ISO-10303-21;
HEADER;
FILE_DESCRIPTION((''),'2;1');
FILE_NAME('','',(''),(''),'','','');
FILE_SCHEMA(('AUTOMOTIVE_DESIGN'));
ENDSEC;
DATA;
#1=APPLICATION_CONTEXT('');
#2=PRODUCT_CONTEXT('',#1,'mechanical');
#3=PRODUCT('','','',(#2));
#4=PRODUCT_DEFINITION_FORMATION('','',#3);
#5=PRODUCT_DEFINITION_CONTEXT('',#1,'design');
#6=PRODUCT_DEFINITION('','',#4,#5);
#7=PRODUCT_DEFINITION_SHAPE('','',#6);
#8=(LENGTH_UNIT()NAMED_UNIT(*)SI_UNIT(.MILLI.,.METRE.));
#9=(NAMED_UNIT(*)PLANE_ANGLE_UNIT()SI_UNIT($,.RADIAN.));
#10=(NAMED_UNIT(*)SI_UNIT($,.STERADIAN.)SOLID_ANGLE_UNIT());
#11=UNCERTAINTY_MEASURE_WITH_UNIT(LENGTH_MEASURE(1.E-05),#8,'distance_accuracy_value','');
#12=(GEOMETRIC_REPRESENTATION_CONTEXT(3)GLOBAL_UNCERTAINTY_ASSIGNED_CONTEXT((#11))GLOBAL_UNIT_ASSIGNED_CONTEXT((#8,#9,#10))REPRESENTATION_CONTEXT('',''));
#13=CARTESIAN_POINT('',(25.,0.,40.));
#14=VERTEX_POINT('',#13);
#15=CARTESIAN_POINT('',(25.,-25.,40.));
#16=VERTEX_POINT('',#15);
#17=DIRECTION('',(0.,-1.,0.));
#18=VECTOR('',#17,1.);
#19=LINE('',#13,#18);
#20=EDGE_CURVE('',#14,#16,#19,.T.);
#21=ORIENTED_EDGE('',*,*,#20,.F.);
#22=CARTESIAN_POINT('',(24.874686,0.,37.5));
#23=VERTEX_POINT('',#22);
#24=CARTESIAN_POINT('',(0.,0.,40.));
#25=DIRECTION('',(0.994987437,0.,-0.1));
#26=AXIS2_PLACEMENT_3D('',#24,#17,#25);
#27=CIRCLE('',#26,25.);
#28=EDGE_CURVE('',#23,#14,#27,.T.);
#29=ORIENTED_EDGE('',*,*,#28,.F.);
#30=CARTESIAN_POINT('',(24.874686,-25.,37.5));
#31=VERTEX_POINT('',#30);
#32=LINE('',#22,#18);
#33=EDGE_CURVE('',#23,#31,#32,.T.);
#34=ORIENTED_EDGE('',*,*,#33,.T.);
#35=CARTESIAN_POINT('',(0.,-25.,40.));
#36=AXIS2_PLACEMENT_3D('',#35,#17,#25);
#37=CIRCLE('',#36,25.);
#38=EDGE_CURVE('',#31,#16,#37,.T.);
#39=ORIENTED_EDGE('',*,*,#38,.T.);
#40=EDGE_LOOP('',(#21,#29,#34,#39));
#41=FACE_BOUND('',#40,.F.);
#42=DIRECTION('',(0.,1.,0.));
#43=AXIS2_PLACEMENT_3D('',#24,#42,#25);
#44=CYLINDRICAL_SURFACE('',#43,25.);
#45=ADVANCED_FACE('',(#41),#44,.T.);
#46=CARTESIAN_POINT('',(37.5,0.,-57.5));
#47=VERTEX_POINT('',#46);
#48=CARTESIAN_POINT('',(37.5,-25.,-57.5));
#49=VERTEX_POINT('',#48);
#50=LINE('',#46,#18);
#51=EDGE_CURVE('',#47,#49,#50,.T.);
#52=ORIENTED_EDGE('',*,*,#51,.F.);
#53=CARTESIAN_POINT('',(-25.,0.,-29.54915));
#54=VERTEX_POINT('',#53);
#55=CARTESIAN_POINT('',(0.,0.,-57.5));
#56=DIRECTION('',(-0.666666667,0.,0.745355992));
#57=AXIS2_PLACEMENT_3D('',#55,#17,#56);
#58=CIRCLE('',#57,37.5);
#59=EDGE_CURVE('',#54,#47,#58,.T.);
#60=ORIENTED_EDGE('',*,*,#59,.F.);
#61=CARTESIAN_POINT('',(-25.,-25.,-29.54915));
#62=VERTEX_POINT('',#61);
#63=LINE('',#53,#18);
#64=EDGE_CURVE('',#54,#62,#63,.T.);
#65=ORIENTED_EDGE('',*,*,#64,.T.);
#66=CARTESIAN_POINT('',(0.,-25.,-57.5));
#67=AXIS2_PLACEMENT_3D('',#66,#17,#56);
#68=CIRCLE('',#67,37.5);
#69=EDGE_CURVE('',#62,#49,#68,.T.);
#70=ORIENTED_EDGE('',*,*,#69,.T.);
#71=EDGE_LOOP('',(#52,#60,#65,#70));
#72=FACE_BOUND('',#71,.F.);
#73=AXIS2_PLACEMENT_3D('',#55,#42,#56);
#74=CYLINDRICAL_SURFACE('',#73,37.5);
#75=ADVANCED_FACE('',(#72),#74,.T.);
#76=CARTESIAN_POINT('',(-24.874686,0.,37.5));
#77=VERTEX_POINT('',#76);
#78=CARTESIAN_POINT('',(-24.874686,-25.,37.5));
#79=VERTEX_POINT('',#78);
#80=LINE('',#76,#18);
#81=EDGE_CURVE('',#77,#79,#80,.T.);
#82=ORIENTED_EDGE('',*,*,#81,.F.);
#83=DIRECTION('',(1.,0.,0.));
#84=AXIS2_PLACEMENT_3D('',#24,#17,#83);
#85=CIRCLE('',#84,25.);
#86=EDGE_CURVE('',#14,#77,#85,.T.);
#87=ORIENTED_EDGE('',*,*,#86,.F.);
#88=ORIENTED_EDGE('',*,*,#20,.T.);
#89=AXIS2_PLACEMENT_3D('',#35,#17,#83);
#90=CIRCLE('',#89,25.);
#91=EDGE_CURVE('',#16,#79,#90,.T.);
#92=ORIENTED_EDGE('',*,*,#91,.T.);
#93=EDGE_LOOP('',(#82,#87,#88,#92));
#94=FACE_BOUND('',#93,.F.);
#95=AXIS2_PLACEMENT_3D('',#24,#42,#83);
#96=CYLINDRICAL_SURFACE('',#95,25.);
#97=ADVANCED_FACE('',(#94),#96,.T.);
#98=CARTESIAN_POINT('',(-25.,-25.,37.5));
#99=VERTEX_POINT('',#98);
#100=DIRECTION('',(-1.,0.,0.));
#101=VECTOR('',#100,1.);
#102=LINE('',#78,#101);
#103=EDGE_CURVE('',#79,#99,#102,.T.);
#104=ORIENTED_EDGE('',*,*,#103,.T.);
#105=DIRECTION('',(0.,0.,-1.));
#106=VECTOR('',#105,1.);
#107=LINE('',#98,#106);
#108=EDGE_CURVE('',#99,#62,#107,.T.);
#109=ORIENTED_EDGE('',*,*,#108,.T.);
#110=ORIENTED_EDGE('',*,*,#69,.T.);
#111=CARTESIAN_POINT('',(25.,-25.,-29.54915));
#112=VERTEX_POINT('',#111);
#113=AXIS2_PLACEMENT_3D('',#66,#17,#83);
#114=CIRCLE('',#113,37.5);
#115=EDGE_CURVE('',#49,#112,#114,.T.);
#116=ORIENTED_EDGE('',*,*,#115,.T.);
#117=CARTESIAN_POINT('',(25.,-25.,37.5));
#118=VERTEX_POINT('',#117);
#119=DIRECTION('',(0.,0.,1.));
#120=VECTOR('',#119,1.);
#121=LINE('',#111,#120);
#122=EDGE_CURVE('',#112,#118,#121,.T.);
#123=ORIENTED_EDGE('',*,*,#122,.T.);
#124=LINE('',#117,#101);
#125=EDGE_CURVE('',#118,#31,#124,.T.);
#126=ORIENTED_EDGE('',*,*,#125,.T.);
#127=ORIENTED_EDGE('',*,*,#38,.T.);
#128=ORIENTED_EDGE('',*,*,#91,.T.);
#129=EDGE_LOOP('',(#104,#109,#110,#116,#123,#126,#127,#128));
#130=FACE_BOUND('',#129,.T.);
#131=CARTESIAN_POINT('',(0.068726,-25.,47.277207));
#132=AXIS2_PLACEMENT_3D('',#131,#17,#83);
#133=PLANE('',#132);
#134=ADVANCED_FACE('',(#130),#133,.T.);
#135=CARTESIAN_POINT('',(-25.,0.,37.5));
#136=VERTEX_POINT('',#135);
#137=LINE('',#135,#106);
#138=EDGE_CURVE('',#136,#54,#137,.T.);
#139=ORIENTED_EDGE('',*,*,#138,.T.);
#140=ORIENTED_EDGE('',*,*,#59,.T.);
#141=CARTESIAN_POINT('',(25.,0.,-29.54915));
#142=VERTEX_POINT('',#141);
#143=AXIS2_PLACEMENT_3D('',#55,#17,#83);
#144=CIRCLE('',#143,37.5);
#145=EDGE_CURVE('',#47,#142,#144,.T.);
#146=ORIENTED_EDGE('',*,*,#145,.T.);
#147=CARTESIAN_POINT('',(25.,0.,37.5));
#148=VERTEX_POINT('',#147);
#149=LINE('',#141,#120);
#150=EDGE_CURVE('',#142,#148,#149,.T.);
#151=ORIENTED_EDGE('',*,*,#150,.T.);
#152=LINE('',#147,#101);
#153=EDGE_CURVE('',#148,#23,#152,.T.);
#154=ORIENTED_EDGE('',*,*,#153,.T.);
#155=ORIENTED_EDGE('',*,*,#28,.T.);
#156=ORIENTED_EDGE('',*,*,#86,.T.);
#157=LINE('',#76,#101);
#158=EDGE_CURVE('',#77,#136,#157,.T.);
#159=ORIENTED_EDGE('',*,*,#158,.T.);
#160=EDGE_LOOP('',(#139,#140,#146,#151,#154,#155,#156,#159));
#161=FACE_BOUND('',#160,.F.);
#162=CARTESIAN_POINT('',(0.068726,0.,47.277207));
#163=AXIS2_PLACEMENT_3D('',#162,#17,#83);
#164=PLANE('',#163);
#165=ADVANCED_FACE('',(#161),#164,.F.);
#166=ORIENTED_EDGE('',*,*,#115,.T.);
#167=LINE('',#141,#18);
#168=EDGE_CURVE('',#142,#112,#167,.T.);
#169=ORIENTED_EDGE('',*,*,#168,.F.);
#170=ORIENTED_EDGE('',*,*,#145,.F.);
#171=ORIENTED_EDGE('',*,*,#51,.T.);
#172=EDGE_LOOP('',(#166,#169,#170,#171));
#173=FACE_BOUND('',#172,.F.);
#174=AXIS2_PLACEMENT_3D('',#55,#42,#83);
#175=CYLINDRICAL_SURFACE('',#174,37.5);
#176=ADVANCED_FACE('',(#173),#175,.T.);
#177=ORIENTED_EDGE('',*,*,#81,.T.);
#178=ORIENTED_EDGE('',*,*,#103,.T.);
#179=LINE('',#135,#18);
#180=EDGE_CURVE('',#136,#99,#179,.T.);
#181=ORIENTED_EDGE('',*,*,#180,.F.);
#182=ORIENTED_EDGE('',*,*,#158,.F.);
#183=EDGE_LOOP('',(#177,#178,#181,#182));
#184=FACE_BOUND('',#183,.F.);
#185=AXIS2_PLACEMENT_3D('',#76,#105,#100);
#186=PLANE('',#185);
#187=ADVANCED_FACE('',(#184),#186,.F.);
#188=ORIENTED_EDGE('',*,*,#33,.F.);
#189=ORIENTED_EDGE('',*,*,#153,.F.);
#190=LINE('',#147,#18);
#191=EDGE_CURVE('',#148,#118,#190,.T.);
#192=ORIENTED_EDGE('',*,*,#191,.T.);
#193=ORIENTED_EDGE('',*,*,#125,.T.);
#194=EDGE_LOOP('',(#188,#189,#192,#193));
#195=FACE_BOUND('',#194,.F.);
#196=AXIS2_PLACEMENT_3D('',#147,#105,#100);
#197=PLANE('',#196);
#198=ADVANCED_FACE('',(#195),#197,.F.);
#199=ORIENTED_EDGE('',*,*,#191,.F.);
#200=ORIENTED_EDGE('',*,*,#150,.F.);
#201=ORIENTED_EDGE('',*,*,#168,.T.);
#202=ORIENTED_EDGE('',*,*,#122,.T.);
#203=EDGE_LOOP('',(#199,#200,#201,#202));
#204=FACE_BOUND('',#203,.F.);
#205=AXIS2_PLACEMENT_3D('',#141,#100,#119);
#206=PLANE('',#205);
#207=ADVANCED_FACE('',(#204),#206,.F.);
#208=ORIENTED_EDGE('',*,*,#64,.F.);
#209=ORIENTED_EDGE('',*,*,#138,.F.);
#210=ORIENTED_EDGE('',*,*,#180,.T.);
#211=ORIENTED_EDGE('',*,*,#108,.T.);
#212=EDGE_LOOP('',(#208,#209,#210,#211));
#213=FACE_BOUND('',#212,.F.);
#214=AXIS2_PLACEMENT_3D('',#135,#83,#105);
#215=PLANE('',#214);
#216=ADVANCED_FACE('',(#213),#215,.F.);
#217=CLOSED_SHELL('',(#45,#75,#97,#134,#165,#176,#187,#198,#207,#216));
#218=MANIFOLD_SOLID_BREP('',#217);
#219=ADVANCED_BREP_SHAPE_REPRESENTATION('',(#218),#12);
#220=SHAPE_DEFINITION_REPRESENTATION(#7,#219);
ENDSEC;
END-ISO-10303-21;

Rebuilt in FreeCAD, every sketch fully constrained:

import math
import FreeCAD as App
import Part
import Sketcher
from FreeCAD import Vector

doc = App.newDocument("Part")
body = doc.addObject("PartDesign::Body", "Body")

# Sketch on XZ plane
sketch1 = body.newObject("Sketcher::SketchObject", "Sketch")
sketch1.AttachmentSupport = (doc.getObject("XZ_Plane"), [""])
sketch1.MapMode = "FlatFace"
sketch1.addGeometry(Part.ArcOfCircle(Part.Circle(Vector(0, 40, 0), Vector(0, 0, 1), 25), math.radians(-5.73917), math.radians(0)), False)
sketch1.addGeometry(Part.ArcOfCircle(Part.Circle(Vector(0, 40, 0), Vector(0, 0, 1), 25), math.radians(0), math.radians(185.73917)), False)
sketch1.addGeometry(Part.LineSegment(Vector(-24.874686, 37.5, 0), Vector(-25, 37.5, 0)), False)
sketch1.addGeometry(Part.LineSegment(Vector(-25, 37.5, 0), Vector(-25, -29.54915, 0)), False)
sketch1.addGeometry(Part.ArcOfCircle(Part.Circle(Vector(0, -57.5, 0), Vector(0, 0, 1), 37.5), math.radians(131.810315), math.radians(360)), False)
sketch1.addGeometry(Part.ArcOfCircle(Part.Circle(Vector(0, -57.5, 0), Vector(0, 0, 1), 37.5), math.radians(0), math.radians(48.189685)), False)
sketch1.addGeometry(Part.LineSegment(Vector(25, -29.54915, 0), Vector(25, 37.5, 0)), False)
sketch1.addGeometry(Part.LineSegment(Vector(25, 37.5, 0), Vector(24.874686, 37.5, 0)), False)
sketch1.addConstraint(Sketcher.Constraint("Tangent", 0, 2, 1, 1))
sketch1.addConstraint(Sketcher.Constraint("Coincident", 1, 2, 2, 1))
sketch1.addConstraint(Sketcher.Constraint("Coincident", 2, 2, 3, 1))
sketch1.addConstraint(Sketcher.Constraint("Coincident", 3, 2, 4, 1))
sketch1.addConstraint(Sketcher.Constraint("Tangent", 4, 2, 5, 1))
sketch1.addConstraint(Sketcher.Constraint("Coincident", 5, 2, 6, 1))
sketch1.addConstraint(Sketcher.Constraint("Coincident", 6, 2, 7, 1))
sketch1.addConstraint(Sketcher.Constraint("Coincident", 7, 2, 0, 1))
sketch1.addConstraint(Sketcher.Constraint("Horizontal", 2))
sketch1.addConstraint(Sketcher.Constraint("Vertical", 3))
sketch1.addConstraint(Sketcher.Constraint("Vertical", 6))
sketch1.addConstraint(Sketcher.Constraint("Horizontal", 7))
sketch1.addConstraint(Sketcher.Constraint("Equal", 0, 1))
sketch1.addConstraint(Sketcher.Constraint("Equal", 4, 5))
sketch1.addConstraint(Sketcher.Constraint("Symmetric", 3, 2, 5, 2, -2))
sketch1.addConstraint(Sketcher.Constraint("Symmetric", 1, 2, 7, 2, -2))
sketch1.addConstraint(Sketcher.Constraint("Horizontal", 1, 3, 0, 2))
sketch1.addConstraint(Sketcher.Constraint("Horizontal", 5, 3, 4, 2))
sketch1.addConstraint(Sketcher.Constraint("Vertical", 0, 2, 5, 2))
sketch1.addConstraint(Sketcher.Constraint("Radius", 0, 25.0))
sketch1.addConstraint(Sketcher.Constraint("Radius", 4, 37.5))
sketch1.addConstraint(Sketcher.Constraint("DistanceY", -1, 1, 0, 3, 40.0))
sketch1.addConstraint(Sketcher.Constraint("DistanceY", 4, 3, 1, 2, 95.0))
sketch1.addConstraint(Sketcher.Constraint("DistanceY", 4, 3, -1, 1, 57.5))
pad1 = body.newObject("PartDesign::Pad", "Pad")
pad1.Profile = sketch1
pad1.Length = 25

doc.recompute()
